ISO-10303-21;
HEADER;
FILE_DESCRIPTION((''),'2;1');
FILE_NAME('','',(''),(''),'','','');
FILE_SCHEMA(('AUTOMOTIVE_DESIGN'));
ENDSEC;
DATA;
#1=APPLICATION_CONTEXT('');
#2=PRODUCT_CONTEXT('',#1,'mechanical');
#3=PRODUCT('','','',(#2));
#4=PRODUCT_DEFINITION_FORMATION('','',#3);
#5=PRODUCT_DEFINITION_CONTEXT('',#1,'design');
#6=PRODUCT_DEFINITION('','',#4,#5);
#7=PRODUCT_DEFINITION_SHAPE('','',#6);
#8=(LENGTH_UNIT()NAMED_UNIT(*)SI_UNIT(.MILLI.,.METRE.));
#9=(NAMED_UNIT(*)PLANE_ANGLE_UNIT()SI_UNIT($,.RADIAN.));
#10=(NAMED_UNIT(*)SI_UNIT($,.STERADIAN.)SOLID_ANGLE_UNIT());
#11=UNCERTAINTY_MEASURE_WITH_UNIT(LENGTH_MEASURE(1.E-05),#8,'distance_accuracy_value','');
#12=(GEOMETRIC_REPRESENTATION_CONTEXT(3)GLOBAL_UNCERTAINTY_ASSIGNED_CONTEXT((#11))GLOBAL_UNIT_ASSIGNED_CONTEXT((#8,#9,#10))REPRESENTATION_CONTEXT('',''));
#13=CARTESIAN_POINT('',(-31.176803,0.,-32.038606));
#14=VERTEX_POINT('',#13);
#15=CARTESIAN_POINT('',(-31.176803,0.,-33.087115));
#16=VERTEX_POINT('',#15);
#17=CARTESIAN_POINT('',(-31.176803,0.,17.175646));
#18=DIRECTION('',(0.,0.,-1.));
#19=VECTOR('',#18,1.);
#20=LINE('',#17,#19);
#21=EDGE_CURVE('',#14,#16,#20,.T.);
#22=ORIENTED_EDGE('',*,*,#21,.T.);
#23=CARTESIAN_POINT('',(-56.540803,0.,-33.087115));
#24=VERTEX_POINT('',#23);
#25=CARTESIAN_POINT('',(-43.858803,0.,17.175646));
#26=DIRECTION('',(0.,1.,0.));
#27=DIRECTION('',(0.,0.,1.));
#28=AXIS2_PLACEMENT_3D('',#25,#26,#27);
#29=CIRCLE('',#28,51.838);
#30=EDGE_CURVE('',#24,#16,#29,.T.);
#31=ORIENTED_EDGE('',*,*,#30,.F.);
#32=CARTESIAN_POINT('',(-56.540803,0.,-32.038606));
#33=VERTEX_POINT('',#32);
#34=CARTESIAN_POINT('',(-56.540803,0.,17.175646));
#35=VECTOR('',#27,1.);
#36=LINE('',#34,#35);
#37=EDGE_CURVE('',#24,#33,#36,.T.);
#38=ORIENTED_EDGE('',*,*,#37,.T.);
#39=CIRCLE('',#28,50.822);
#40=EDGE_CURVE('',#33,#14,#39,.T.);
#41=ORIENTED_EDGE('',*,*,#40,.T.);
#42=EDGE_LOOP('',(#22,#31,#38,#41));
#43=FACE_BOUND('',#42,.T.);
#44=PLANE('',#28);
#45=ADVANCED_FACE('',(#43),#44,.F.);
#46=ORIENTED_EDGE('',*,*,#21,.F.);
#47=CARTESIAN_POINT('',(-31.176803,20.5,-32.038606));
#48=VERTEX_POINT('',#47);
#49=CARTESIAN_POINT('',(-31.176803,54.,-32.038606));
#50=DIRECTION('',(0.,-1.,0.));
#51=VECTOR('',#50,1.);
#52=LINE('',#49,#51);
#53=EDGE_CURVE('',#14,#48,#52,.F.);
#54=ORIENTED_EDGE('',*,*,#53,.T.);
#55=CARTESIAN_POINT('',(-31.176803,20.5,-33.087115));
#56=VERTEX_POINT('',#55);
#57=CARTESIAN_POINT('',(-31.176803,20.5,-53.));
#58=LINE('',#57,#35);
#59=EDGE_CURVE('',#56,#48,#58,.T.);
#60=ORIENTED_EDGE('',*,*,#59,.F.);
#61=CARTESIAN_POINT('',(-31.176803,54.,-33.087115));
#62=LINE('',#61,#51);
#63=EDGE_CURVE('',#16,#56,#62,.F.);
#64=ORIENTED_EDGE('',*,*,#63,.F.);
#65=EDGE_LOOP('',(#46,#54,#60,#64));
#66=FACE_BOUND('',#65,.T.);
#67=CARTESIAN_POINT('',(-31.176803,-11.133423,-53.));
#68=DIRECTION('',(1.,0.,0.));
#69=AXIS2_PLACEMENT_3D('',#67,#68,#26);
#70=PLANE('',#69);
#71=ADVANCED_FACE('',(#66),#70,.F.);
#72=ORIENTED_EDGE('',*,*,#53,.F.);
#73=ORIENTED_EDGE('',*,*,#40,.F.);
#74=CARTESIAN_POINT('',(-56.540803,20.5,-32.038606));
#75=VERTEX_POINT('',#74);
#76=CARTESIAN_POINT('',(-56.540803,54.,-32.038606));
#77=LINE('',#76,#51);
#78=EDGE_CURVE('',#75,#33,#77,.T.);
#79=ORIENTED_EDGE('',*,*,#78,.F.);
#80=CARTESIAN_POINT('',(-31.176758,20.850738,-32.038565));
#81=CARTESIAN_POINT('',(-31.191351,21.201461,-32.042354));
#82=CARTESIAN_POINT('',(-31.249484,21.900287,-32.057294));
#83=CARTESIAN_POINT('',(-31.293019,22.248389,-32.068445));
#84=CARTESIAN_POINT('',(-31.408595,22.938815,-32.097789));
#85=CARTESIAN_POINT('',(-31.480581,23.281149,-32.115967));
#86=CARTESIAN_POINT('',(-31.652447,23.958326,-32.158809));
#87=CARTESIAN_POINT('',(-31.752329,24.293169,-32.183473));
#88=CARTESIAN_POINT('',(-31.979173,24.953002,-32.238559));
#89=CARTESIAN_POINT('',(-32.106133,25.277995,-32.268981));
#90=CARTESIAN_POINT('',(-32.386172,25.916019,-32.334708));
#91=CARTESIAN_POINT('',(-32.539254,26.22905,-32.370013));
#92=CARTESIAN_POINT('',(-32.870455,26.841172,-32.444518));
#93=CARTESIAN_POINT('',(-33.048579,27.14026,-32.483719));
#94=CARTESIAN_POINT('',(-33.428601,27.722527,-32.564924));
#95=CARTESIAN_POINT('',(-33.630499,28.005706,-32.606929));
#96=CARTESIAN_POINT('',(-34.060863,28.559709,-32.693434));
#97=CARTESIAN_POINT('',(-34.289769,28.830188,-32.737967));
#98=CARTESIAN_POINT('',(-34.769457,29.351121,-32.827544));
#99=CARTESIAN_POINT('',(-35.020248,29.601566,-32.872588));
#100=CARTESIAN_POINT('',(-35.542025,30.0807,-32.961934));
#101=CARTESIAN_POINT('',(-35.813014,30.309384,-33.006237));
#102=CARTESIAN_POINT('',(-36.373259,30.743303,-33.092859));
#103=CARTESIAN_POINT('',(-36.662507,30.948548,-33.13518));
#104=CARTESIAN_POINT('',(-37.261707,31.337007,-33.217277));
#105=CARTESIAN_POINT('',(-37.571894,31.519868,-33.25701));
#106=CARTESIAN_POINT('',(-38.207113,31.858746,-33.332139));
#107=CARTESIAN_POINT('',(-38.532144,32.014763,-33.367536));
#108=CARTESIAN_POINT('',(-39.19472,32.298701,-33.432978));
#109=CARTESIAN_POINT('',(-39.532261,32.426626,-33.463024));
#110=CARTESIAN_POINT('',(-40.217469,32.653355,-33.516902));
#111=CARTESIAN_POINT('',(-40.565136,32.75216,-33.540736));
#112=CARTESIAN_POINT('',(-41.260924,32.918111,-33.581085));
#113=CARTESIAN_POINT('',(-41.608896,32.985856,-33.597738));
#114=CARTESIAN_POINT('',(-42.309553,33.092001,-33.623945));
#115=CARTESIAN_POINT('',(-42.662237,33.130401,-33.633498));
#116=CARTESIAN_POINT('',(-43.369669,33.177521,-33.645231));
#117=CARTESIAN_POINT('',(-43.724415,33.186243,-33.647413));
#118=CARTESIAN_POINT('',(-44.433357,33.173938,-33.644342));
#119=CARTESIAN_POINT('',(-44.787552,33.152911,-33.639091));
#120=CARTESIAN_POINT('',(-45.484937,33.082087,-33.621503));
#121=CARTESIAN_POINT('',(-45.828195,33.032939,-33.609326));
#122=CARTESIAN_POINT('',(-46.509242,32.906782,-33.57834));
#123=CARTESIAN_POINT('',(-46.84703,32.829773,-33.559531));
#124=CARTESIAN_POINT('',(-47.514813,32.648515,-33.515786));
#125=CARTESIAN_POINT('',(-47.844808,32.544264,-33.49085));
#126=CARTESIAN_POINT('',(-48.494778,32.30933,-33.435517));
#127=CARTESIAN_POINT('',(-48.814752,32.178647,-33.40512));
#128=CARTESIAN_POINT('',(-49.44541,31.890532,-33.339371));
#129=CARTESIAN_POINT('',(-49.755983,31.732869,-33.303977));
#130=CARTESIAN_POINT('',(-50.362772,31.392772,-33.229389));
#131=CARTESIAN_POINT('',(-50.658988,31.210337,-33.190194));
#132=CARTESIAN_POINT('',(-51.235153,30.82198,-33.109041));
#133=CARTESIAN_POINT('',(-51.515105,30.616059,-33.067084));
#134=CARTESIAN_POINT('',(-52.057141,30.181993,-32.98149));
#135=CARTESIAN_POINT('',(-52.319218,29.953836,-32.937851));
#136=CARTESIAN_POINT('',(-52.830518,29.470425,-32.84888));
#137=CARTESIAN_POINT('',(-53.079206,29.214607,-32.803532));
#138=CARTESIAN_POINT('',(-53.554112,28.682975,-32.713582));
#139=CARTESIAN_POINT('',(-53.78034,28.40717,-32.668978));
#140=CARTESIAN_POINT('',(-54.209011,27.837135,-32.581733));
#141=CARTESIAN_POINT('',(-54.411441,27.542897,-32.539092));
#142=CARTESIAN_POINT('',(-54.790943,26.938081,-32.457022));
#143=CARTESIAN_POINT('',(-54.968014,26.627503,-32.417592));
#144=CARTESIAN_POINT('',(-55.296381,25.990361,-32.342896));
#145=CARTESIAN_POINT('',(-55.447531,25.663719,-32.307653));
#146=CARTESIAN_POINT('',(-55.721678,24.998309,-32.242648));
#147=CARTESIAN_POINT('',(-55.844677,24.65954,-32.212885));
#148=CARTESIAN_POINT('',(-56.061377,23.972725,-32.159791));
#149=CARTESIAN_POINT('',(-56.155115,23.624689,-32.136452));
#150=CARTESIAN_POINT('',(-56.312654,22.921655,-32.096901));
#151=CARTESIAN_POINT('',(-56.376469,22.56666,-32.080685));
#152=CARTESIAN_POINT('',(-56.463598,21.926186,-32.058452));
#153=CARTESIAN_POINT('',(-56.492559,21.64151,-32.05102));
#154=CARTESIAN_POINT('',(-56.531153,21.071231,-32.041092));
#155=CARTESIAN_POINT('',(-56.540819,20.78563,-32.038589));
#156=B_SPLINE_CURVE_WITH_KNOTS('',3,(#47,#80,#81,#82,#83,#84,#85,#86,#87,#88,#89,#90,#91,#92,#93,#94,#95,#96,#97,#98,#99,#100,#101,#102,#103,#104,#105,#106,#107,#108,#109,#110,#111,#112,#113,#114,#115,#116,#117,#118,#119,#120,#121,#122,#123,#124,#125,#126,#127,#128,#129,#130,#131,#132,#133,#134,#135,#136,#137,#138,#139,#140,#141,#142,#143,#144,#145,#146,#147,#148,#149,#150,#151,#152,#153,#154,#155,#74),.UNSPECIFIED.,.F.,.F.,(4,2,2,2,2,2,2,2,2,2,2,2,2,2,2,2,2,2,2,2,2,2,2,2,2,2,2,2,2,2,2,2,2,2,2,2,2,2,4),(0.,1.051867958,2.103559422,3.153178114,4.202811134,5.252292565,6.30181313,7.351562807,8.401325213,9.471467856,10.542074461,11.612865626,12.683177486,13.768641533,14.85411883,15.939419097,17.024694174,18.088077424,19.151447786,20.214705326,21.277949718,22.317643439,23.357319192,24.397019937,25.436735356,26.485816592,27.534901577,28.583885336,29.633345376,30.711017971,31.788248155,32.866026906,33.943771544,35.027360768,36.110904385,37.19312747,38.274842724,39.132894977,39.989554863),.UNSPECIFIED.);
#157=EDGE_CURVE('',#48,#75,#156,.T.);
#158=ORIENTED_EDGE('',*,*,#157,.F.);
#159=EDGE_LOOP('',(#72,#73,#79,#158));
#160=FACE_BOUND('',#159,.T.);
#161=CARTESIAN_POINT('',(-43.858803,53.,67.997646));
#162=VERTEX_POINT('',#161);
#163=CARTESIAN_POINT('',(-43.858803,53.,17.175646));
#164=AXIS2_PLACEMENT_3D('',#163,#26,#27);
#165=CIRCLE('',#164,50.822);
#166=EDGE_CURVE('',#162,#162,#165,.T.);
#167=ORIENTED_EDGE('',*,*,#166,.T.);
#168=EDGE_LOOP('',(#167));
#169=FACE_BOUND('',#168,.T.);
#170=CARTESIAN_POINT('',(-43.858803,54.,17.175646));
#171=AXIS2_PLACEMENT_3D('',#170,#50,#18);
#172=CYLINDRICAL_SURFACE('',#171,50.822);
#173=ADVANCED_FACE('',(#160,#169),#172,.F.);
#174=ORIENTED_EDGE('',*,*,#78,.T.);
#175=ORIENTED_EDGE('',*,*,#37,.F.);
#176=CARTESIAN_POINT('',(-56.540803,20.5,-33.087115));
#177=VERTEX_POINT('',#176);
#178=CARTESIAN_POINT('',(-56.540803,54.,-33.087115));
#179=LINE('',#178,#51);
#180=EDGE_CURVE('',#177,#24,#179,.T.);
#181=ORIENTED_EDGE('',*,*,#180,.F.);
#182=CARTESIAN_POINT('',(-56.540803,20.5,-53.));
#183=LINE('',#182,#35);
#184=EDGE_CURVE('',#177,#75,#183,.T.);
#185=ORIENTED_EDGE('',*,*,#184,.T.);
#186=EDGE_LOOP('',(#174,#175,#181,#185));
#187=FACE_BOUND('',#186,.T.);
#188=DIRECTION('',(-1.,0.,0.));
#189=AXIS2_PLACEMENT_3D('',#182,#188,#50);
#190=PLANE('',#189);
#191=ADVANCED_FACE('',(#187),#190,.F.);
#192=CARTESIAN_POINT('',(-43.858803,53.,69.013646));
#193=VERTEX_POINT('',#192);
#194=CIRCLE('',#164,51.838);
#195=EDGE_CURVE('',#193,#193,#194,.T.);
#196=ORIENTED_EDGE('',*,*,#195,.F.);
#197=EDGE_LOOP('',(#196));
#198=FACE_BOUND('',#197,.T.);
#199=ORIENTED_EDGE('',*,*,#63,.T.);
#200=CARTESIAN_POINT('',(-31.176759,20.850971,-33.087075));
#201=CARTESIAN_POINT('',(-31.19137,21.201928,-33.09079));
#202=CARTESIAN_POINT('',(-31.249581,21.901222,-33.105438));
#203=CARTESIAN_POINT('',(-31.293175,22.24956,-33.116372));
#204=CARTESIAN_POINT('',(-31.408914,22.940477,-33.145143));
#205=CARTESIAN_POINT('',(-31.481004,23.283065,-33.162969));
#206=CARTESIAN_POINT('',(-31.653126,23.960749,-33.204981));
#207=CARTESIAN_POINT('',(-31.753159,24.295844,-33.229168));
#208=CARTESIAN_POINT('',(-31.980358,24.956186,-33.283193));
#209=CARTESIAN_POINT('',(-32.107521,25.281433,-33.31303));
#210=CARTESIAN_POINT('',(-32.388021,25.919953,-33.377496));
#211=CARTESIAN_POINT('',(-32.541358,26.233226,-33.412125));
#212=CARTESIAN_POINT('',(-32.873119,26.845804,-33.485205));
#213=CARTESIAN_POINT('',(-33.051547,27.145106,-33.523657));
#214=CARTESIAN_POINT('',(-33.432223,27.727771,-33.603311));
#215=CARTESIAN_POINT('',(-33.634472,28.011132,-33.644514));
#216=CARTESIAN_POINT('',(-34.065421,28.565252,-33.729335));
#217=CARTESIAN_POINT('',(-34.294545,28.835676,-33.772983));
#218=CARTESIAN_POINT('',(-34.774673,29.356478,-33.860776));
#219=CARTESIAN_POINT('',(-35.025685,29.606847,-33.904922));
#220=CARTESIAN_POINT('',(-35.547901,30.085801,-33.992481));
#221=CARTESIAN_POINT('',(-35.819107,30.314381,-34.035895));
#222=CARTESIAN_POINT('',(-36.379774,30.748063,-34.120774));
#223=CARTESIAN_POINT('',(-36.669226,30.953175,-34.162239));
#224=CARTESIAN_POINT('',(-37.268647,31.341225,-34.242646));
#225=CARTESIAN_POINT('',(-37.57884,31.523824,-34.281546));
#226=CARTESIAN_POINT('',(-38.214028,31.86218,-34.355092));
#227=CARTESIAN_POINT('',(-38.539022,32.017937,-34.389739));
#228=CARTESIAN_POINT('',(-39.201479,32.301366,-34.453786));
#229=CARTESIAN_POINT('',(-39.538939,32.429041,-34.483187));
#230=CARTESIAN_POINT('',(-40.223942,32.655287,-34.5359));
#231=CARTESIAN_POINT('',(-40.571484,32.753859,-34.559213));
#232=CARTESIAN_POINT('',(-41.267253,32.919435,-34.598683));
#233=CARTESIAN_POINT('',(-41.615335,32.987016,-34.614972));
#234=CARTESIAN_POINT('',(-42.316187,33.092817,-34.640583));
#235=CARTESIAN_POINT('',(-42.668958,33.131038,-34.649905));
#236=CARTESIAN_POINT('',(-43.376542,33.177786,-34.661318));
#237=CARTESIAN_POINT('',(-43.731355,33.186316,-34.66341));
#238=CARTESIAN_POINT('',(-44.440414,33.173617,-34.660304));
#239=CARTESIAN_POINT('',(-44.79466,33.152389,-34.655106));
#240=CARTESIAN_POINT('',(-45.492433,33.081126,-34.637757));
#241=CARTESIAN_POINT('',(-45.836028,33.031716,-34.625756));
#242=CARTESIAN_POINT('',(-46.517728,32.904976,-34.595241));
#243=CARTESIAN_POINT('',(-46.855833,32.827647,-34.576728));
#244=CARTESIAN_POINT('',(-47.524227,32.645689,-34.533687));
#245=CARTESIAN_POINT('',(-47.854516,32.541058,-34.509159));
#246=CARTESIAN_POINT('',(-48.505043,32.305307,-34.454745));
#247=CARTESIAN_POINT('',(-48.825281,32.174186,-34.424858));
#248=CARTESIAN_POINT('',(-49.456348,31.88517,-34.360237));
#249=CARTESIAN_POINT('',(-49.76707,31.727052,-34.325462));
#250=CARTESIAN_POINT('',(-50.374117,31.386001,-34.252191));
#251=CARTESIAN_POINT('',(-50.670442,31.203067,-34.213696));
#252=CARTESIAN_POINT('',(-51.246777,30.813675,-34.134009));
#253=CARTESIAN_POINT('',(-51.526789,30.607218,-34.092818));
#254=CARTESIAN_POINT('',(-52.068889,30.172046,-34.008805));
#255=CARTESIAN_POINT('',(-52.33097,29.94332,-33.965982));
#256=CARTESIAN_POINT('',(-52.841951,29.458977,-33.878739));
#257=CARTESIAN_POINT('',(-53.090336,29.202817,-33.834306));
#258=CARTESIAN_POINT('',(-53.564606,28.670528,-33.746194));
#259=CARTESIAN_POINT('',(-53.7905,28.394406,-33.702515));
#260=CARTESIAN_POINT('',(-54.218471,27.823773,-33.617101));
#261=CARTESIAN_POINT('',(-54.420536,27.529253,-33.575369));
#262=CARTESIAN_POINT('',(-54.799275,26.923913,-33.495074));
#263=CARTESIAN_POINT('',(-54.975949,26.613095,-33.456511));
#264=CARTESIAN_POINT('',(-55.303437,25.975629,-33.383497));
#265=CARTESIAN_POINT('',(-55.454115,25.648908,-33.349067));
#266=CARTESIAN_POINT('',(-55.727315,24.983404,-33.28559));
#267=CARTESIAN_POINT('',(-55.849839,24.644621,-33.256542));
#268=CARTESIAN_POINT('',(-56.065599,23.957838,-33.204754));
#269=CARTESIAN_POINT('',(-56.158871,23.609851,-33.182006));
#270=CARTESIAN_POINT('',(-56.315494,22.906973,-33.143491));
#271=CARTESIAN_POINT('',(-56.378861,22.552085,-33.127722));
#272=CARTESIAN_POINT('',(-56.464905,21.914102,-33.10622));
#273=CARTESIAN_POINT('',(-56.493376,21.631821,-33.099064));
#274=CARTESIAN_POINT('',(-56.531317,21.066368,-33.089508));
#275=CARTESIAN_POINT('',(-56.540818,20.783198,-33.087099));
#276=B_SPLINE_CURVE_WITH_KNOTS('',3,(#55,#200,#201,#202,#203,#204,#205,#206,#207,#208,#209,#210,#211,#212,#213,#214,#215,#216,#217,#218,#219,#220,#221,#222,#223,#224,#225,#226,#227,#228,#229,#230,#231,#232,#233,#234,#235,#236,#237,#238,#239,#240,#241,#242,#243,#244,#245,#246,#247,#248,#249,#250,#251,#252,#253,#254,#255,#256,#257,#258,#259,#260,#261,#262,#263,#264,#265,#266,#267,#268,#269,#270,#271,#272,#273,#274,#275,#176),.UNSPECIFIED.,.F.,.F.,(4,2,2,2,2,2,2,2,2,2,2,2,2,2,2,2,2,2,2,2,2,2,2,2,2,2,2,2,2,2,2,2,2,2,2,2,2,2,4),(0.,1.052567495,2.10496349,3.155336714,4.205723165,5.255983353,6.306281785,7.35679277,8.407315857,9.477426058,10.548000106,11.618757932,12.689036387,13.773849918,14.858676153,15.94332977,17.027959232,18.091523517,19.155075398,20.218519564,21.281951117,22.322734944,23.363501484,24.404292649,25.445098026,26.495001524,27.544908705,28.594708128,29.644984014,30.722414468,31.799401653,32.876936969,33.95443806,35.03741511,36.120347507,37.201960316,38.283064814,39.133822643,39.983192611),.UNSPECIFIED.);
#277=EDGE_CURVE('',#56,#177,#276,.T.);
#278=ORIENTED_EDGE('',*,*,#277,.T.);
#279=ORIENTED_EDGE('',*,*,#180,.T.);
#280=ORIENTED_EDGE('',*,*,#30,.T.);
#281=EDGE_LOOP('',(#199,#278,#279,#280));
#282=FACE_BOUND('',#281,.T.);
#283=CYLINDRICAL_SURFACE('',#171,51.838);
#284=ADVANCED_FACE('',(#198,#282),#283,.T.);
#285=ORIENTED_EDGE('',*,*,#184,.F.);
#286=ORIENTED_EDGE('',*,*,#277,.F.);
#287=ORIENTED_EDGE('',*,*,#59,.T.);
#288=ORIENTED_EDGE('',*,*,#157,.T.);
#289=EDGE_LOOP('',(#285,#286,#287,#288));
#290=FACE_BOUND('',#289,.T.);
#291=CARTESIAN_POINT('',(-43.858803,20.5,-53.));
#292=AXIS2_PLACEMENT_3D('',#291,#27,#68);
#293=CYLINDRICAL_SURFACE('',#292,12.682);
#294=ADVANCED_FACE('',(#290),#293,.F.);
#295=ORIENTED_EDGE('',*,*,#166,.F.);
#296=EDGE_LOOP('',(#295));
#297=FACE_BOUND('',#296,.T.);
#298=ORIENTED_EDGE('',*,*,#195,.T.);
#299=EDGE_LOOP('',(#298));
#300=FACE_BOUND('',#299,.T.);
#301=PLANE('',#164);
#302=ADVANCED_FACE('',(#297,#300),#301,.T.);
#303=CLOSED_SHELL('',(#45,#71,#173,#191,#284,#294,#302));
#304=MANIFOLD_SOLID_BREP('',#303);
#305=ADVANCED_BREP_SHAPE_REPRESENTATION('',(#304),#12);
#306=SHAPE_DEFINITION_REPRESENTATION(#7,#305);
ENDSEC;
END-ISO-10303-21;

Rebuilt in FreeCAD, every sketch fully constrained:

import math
import FreeCAD as App
import Part
import Sketcher

V = App.Vector
Q = App.Units.Quantity

doc = App.newDocument("Part")
params = doc.addObject("Spreadsheet::Sheet", "Params")
for row, (alias, value) in enumerate([
    ("pad1_length", "54 mm"),
    ("pocket1_length", "53 mm"),
    ("pocket2_length", "1 mm"),
], start=1):
    params.set(f"A{row}", alias)
    params.set(f"B{row}", "=" + value)
    params.setAlias(f"B{row}", alias)

body = doc.addObject("PartDesign::Body", "Body")

# Sketch on XZ plane
sketch1 = body.newObject("Sketcher::SketchObject", "Sketch")
sketch1.AttachmentSupport = (doc.getObject("XZ_Plane"), [""])
sketch1.MapMode = "FlatFace"
sketch1.addGeometry([
    Part.Circle(V(-43.858803, 17.175646, 0), V(0, 0, 1), 51.838),
    Part.Circle(V(-43.858803, 17.175646, 0), V(0, 0, 1), 50.822),
], False)
sketch1.addConstraint([
    Sketcher.Constraint("Coincident", 1, 3, 0, 3),
    Sketcher.Constraint("Diameter", 0, Q("103.676 mm")),
    Sketcher.Constraint("Diameter", 1, Q("101.644 mm")),
    Sketcher.Constraint("DistanceX", 0, 3, -1, 1, Q("43.858803 mm")),
    Sketcher.Constraint("DistanceY", -1, 1, 0, 3, Q("17.175646 mm")),
])
pad1 = body.newObject("PartDesign::Pad", "Pad")
pad1.Profile = sketch1
pad1.setExpression("Length", "Params.pad1_length")
pad1.Reversed = True

# Sketch on XY plane
sketch2 = body.newObject("Sketcher::SketchObject", "Sketch001")
sketch2.AttachmentSupport = (doc.getObject("XY_Plane"), [""])
sketch2.MapMode = "FlatFace"
sketch2.addGeometry([
    Part.LineSegment(V(-56.540803, 20.5, 0), V(-56.540803, -11.133423, 0)),
    Part.LineSegment(V(-56.540803, -11.133423, 0), V(-31.176803, -11.133423, 0)),
    Part.LineSegment(V(-31.176803, -11.133423, 0), V(-31.176803, 20.5, 0)),
    Part.ArcOfCircle(Part.Circle(V(-43.858803, 20.5, 0), V(0, 0, 1), 12.682), math.radians(0), math.radians(180)),
], False)
sketch2.addConstraint([
    Sketcher.Constraint("Coincident", 0, 2, 1, 1),
    Sketcher.Constraint("Coincident", 1, 2, 2, 1),
    Sketcher.Constraint("Tangent", 2, 2, 3, 1),
    Sketcher.Constraint("Tangent", 3, 2, 0, 1),
    Sketcher.Constraint("Vertical", 0),
    Sketcher.Constraint("Horizontal", 1),
    Sketcher.Constraint("Vertical", 2),
    Sketcher.Constraint("Radius", 3, Q("12.682 mm")),
    Sketcher.Constraint("DistanceY", -1, 1, 3, 3, Q("20.5 mm")),
    Sketcher.Constraint("DistanceY", 0, 2, 0, 1, Q("31.633423 mm")),
    Sketcher.Constraint("DistanceX", 3, 3, -1, 1, Q("43.858803 mm")),
])
pocket1 = body.newObject("PartDesign::Pocket", "Pocket")
pocket1.Profile = sketch2
pocket1.setExpression("Length", "Params.pocket1_length")

# Sketch on XZ plane
sketch3 = body.newObject("Sketcher::SketchObject", "Sketch002")
sketch3.AttachmentSupport = (doc.getObject("XZ_Plane"), [""])
sketch3.MapMode = "FlatFace"
sketch3.AttachmentOffset = App.Placement(V(0, 0, -53), App.Rotation())
sketch3.addGeometry([
    Part.Circle(V(-43.858803, 17.175646, 0), V(0, 0, 1), 51.838),
    Part.Circle(V(-43.858803, 17.175646, 0), V(0, 0, 1), 50.822),
], False)
sketch3.addConstraint([
    Sketcher.Constraint("Coincident", 1, 3, 0, 3),
    Sketcher.Constraint("Diameter", 0, Q("103.676 mm")),
    Sketcher.Constraint("Diameter", 1, Q("101.644 mm")),
    Sketcher.Constraint("DistanceX", 0, 3, -1, 1, Q("43.858803 mm")),
    Sketcher.Constraint("DistanceY", -1, 1, 0, 3, Q("17.175646 mm")),
])
pocket2 = body.newObject("PartDesign::Pocket", "Pocket001")
pocket2.Profile = sketch3
pocket2.setExpression("Length", "Params.pocket2_length")

doc.recompute()
